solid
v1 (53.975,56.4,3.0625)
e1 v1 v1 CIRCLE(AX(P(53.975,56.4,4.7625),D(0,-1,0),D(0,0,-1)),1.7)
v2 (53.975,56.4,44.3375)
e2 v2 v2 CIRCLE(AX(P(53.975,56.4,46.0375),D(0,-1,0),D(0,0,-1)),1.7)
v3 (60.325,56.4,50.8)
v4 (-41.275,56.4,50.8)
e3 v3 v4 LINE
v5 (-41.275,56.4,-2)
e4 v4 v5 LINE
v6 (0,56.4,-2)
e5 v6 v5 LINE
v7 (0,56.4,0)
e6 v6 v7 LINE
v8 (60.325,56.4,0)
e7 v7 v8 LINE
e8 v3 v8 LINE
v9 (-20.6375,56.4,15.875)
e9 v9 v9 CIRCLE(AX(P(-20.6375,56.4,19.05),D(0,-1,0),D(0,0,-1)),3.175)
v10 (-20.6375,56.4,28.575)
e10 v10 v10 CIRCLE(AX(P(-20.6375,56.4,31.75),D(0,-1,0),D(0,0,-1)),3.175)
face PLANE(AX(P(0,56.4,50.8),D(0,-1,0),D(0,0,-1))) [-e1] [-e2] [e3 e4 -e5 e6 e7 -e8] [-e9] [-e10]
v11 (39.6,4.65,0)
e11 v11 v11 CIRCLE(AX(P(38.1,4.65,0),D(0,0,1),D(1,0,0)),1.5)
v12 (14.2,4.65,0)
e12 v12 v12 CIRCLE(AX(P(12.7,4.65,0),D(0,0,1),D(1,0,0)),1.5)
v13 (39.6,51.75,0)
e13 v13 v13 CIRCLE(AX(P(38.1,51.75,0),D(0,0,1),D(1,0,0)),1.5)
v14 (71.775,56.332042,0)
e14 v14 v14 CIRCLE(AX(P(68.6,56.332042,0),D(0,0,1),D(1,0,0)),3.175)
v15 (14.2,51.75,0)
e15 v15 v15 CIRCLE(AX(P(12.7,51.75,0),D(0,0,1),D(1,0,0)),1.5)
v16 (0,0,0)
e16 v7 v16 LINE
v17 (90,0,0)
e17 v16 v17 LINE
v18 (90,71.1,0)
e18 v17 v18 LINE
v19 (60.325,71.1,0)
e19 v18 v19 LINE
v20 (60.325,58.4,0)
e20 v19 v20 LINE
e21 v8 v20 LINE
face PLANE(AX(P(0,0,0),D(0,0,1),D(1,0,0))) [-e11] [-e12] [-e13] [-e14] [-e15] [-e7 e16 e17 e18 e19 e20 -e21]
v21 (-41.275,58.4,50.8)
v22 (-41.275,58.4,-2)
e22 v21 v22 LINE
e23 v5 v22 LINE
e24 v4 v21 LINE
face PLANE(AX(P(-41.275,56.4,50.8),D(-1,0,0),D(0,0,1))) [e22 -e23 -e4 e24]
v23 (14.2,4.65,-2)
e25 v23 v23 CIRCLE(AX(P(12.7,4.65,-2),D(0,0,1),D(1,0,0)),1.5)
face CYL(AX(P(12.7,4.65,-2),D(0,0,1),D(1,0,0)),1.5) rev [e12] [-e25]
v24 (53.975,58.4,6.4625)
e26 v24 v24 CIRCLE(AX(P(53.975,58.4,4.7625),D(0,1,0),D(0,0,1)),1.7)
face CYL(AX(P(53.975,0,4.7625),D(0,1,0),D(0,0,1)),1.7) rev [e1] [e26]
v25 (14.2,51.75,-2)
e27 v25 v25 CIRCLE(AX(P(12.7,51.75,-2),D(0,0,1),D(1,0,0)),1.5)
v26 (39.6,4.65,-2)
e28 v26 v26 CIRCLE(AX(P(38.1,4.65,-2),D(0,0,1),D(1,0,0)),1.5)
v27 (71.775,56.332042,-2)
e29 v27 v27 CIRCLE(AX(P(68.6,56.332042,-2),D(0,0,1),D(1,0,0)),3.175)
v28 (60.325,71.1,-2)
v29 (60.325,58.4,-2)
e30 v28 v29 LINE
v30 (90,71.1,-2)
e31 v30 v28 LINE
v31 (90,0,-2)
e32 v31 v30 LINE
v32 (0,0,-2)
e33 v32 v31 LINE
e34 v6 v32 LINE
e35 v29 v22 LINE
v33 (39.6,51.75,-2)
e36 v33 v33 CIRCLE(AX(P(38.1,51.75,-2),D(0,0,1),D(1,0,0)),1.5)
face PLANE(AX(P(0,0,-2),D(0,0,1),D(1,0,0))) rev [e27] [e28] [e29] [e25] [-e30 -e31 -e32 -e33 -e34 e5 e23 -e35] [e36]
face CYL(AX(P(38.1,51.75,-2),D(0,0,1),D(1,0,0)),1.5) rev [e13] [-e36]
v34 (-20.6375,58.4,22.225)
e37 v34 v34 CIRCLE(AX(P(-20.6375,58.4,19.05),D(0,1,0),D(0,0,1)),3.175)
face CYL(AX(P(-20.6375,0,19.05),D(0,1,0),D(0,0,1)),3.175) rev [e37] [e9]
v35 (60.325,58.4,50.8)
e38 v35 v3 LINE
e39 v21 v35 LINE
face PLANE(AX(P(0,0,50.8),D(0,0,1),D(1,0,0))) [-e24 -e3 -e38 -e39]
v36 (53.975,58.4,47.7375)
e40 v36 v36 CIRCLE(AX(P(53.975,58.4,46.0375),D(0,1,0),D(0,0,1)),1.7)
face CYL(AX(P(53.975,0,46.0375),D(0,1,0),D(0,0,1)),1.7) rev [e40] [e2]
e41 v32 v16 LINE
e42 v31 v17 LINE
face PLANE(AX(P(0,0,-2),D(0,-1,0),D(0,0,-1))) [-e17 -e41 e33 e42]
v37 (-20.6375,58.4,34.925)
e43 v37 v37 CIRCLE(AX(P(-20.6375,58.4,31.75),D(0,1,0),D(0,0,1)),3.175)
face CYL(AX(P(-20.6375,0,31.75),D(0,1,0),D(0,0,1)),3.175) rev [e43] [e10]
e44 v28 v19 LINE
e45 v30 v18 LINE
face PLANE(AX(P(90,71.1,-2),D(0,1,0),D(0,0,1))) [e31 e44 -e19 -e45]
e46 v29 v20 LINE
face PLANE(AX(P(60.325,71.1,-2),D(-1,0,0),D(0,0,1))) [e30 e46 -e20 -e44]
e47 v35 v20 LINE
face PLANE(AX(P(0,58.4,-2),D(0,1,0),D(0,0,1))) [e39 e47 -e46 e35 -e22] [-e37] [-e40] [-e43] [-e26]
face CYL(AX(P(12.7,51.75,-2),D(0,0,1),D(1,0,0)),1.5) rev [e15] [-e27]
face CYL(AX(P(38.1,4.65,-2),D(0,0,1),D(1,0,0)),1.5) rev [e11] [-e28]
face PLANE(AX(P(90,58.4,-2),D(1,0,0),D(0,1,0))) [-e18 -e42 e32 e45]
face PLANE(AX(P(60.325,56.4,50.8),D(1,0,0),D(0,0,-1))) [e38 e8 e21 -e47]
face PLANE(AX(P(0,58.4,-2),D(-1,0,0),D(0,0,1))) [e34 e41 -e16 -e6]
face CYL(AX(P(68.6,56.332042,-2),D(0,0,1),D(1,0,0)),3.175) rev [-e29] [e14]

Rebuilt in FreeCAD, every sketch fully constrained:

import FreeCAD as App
import Part
import Sketcher

V = App.Vector
Q = App.Units.Quantity

doc = App.newDocument("Part")
body = doc.addObject("PartDesign::Body", "Body")

# Sketch on XY plane
sketch1 = doc.addObject("Sketcher::SketchObject", "Sketch")
body.addObject(sketch1)
sketch1.AttachmentSupport = (doc.XY_Plane, [""])
sketch1.MapMode = "FlatFace"
sketch1.addGeometry(Part.LineSegment(V(60.325, 58.4, 0), V(0, 58.4, 0)), False)
sketch1.addGeometry(Part.LineSegment(V(0, 58.4, 0), V(0, 0, 0)), False)
sketch1.addGeometry(Part.LineSegment(V(0, 0, 0), V(90, 0, 0)), False)
sketch1.addGeometry(Part.LineSegment(V(90, 0, 0), V(90, 71.1, 0)), False)
sketch1.addGeometry(Part.LineSegment(V(90, 71.1, 0), V(60.325, 71.1, 0)), False)
sketch1.addGeometry(Part.LineSegment(V(60.325, 71.1, 0), V(60.325, 58.4, 0)), False)
sketch1.addGeometry(Part.Circle(V(38.1, 4.65, 0), V(0, 0, 1), 1.5), False)
sketch1.addGeometry(Part.Circle(V(12.7, 4.65, 0), V(0, 0, 1), 1.5), False)
sketch1.addGeometry(Part.Circle(V(68.6, 56.332042, 0), V(0, 0, 1), 3.175), False)
sketch1.addGeometry(Part.Circle(V(38.1, 51.75, 0), V(0, 0, 1), 1.5), False)
sketch1.addGeometry(Part.Circle(V(12.7, 51.75, 0), V(0, 0, 1), 1.5), False)
sketch1.addConstraint(Sketcher.Constraint("Coincident", 0, 2, 1, 1))
sketch1.addConstraint(Sketcher.Constraint("Coincident", 1, 2, 2, 1))
sketch1.addConstraint(Sketcher.Constraint("Coincident", 2, 2, 3, 1))
sketch1.addConstraint(Sketcher.Constraint("Coincident", 3, 2, 4, 1))
sketch1.addConstraint(Sketcher.Constraint("Coincident", 4, 2, 5, 1))
sketch1.addConstraint(Sketcher.Constraint("Coincident", 5, 2, 0, 1))
sketch1.addConstraint(Sketcher.Constraint("Horizontal", 0))
sketch1.addConstraint(Sketcher.Constraint("Vertical", 1))
sketch1.addConstraint(Sketcher.Constraint("Horizontal", 2))
sketch1.addConstraint(Sketcher.Constraint("Vertical", 3))
sketch1.addConstraint(Sketcher.Constraint("Horizontal", 4))
sketch1.addConstraint(Sketcher.Constraint("Vertical", 5))
sketch1.addConstraint(Sketcher.Constraint("Coincident", 1, 2, -1, 1))
sketch1.addConstraint(Sketcher.Constraint("Equal", 6, 7))
sketch1.addConstraint(Sketcher.Constraint("Equal", 7, 9))
sketch1.addConstraint(Sketcher.Constraint("Equal", 9, 10))
sketch1.addConstraint(Sketcher.Constraint("Horizontal", 6, 3, 7, 3))
sketch1.addConstraint(Sketcher.Constraint("Horizontal", 9, 3, 10, 3))
sketch1.addConstraint(Sketcher.Constraint("Vertical", 6, 3, 9, 3))
sketch1.addConstraint(Sketcher.Constraint("Vertical", 7, 3, 10, 3))
sketch1.addConstraint(Sketcher.Constraint("Diameter", 6, Q("3 mm")))
sketch1.addConstraint(Sketcher.Constraint("Diameter", 8, Q("6.35 mm")))
sketch1.addConstraint(Sketcher.Constraint("DistanceX", 2, 1, 2, 2, Q("90 mm")))
sketch1.addConstraint(Sketcher.Constraint("DistanceY", 1, 2, 1, 1, Q("58.4 mm")))
sketch1.addConstraint(Sketcher.Constraint("DistanceY", 3, 1, 3, 2, Q("71.1 mm")))
sketch1.addConstraint(Sketcher.Constraint("DistanceX", -1, 1, 6, 3, Q("38.1 mm")))
sketch1.addConstraint(Sketcher.Constraint("DistanceX", -1, 1, 7, 3, Q("12.7 mm")))
sketch1.addConstraint(Sketcher.Constraint("DistanceX", -1, 1, 8, 3, Q("68.6 mm")))
sketch1.addConstraint(Sketcher.Constraint("DistanceY", 6, 3, 9, 3, Q("47.1 mm")))
sketch1.addConstraint(Sketcher.Constraint("DistanceX", 0, 2, 0, 1, Q("60.325 mm")))
sketch1.addConstraint(Sketcher.Constraint("DistanceY", -1, 1, 6, 3, Q("4.65 mm")))
sketch1.addConstraint(Sketcher.Constraint("DistanceY", -1, 1, 8, 3, Q("56.332042 mm")))
pad1 = doc.addObject("PartDesign::Pad", "Pad")
body.addObject(pad1)
pad1.Profile = sketch1
pad1.Length = 2
pad1.Reversed = True

# Sketch on XY plane
sketch2 = doc.addObject("Sketcher::SketchObject", "Sketch001")
body.addObject(sketch2)
sketch2.AttachmentSupport = (doc.XY_Plane, [""])
sketch2.MapMode = "FlatFace"
sketch2.AttachmentOffset = App.Placement(V(0, 0, -2), App.Rotation())
sketch2.addGeometry(Part.LineSegment(V(-41.275, 56.4, 0), V(-41.275, 58.4, 0)), False)
sketch2.addGeometry(Part.LineSegment(V(-41.275, 58.4, 0), V(60.325, 58.4, 0)), False)
sketch2.addGeometry(Part.LineSegment(V(60.325, 58.4, 0), V(60.325, 56.4, 0)), False)
sketch2.addGeometry(Part.LineSegment(V(60.325, 56.4, 0), V(-41.275, 56.4, 0)), False)
sketch2.addConstraint(Sketcher.Constraint("Coincident", 0, 2, 1, 1))
sketch2.addConstraint(Sketcher.Constraint("Coincident", 1, 2, 2, 1))
sketch2.addConstraint(Sketcher.Constraint("Coincident", 2, 2, 3, 1))
sketch2.addConstraint(Sketcher.Constraint("Coincident", 3, 2, 0, 1))
sketch2.addConstraint(Sketcher.Constraint("Vertical", 0))
sketch2.addConstraint(Sketcher.Constraint("Horizontal", 1))
sketch2.addConstraint(Sketcher.Constraint("Vertical", 2))
sketch2.addConstraint(Sketcher.Constraint("Horizontal", 3))
sketch2.addConstraint(Sketcher.Constraint("DistanceY", 0, 1, 0, 2, Q("2 mm")))
sketch2.addConstraint(Sketcher.Constraint("DistanceX", 1, 1, 1, 2, Q("101.6 mm")))
sketch2.addConstraint(Sketcher.Constraint("DistanceY", -1, 1, 0, 2, Q("58.4 mm")))
sketch2.addConstraint(Sketcher.Constraint("DistanceX", 0, 2, -1, 1, Q("41.275 mm")))
pad2 = doc.addObject("PartDesign::Pad", "Pad001")
body.addObject(pad2)
pad2.Profile = sketch2
pad2.Length = 52.8

# Sketch on XZ plane
sketch3 = doc.addObject("Sketcher::SketchObject", "Sketch002")
body.addObject(sketch3)
sketch3.AttachmentSupport = (doc.XZ_Plane, [""])
sketch3.MapMode = "FlatFace"
sketch3.AttachmentOffset = App.Placement(V(0, 0, -58.4), App.Rotation())
sketch3.addGeometry(Part.Circle(V(53.975, 4.7625, 0), V(0, 0, 1), 1.7), False)
sketch3.addGeometry(Part.Circle(V(53.975, 46.0375, 0), V(0, 0, 1), 1.7), False)
sketch3.addGeometry(Part.Circle(V(-20.6375, 31.75, 0), V(0, 0, 1), 3.175), False)
sketch3.addGeometry(Part.Circle(V(-20.6375, 19.05, 0), V(0, 0, 1), 3.175), False)
sketch3.addConstraint(Sketcher.Constraint("Equal", 0, 1))
sketch3.addConstraint(Sketcher.Constraint("Equal", 2, 3))
sketch3.addConstraint(Sketcher.Constraint("Vertical", 0, 3, 1, 3))
sketch3.addConstraint(Sketcher.Constraint("Vertical", 2, 3, 3, 3))
sketch3.addConstraint(Sketcher.Constraint("Diameter", 0, Q("3.4 mm")))
sketch3.addConstraint(Sketcher.Constraint("Diameter", 2, Q("6.35 mm")))
sketch3.addConstraint(Sketcher.Constraint("DistanceY", 3, 3, 2, 3, Q("12.7 mm")))
sketch3.addConstraint(Sketcher.Constraint("DistanceY", -1, 1, 2, 3, Q("31.75 mm")))
sketch3.addConstraint(Sketcher.Constraint("DistanceX", -1, 1, 0, 3, Q("53.975 mm")))
sketch3.addConstraint(Sketcher.Constraint("DistanceY", 0, 3, 1, 3, Q("41.275 mm")))
sketch3.addConstraint(Sketcher.Constraint("DistanceY", -1, 1, 0, 3, Q("4.7625 mm")))
sketch3.addConstraint(Sketcher.Constraint("DistanceX", 2, 3, -1, 1, Q("20.6375 mm")))
pocket1 = doc.addObject("PartDesign::Pocket", "Pocket")
body.addObject(pocket1)
pocket1.Profile = sketch3
pocket1.Type = "ThroughAll"
pocket1.Reversed = True

doc.recompute()
